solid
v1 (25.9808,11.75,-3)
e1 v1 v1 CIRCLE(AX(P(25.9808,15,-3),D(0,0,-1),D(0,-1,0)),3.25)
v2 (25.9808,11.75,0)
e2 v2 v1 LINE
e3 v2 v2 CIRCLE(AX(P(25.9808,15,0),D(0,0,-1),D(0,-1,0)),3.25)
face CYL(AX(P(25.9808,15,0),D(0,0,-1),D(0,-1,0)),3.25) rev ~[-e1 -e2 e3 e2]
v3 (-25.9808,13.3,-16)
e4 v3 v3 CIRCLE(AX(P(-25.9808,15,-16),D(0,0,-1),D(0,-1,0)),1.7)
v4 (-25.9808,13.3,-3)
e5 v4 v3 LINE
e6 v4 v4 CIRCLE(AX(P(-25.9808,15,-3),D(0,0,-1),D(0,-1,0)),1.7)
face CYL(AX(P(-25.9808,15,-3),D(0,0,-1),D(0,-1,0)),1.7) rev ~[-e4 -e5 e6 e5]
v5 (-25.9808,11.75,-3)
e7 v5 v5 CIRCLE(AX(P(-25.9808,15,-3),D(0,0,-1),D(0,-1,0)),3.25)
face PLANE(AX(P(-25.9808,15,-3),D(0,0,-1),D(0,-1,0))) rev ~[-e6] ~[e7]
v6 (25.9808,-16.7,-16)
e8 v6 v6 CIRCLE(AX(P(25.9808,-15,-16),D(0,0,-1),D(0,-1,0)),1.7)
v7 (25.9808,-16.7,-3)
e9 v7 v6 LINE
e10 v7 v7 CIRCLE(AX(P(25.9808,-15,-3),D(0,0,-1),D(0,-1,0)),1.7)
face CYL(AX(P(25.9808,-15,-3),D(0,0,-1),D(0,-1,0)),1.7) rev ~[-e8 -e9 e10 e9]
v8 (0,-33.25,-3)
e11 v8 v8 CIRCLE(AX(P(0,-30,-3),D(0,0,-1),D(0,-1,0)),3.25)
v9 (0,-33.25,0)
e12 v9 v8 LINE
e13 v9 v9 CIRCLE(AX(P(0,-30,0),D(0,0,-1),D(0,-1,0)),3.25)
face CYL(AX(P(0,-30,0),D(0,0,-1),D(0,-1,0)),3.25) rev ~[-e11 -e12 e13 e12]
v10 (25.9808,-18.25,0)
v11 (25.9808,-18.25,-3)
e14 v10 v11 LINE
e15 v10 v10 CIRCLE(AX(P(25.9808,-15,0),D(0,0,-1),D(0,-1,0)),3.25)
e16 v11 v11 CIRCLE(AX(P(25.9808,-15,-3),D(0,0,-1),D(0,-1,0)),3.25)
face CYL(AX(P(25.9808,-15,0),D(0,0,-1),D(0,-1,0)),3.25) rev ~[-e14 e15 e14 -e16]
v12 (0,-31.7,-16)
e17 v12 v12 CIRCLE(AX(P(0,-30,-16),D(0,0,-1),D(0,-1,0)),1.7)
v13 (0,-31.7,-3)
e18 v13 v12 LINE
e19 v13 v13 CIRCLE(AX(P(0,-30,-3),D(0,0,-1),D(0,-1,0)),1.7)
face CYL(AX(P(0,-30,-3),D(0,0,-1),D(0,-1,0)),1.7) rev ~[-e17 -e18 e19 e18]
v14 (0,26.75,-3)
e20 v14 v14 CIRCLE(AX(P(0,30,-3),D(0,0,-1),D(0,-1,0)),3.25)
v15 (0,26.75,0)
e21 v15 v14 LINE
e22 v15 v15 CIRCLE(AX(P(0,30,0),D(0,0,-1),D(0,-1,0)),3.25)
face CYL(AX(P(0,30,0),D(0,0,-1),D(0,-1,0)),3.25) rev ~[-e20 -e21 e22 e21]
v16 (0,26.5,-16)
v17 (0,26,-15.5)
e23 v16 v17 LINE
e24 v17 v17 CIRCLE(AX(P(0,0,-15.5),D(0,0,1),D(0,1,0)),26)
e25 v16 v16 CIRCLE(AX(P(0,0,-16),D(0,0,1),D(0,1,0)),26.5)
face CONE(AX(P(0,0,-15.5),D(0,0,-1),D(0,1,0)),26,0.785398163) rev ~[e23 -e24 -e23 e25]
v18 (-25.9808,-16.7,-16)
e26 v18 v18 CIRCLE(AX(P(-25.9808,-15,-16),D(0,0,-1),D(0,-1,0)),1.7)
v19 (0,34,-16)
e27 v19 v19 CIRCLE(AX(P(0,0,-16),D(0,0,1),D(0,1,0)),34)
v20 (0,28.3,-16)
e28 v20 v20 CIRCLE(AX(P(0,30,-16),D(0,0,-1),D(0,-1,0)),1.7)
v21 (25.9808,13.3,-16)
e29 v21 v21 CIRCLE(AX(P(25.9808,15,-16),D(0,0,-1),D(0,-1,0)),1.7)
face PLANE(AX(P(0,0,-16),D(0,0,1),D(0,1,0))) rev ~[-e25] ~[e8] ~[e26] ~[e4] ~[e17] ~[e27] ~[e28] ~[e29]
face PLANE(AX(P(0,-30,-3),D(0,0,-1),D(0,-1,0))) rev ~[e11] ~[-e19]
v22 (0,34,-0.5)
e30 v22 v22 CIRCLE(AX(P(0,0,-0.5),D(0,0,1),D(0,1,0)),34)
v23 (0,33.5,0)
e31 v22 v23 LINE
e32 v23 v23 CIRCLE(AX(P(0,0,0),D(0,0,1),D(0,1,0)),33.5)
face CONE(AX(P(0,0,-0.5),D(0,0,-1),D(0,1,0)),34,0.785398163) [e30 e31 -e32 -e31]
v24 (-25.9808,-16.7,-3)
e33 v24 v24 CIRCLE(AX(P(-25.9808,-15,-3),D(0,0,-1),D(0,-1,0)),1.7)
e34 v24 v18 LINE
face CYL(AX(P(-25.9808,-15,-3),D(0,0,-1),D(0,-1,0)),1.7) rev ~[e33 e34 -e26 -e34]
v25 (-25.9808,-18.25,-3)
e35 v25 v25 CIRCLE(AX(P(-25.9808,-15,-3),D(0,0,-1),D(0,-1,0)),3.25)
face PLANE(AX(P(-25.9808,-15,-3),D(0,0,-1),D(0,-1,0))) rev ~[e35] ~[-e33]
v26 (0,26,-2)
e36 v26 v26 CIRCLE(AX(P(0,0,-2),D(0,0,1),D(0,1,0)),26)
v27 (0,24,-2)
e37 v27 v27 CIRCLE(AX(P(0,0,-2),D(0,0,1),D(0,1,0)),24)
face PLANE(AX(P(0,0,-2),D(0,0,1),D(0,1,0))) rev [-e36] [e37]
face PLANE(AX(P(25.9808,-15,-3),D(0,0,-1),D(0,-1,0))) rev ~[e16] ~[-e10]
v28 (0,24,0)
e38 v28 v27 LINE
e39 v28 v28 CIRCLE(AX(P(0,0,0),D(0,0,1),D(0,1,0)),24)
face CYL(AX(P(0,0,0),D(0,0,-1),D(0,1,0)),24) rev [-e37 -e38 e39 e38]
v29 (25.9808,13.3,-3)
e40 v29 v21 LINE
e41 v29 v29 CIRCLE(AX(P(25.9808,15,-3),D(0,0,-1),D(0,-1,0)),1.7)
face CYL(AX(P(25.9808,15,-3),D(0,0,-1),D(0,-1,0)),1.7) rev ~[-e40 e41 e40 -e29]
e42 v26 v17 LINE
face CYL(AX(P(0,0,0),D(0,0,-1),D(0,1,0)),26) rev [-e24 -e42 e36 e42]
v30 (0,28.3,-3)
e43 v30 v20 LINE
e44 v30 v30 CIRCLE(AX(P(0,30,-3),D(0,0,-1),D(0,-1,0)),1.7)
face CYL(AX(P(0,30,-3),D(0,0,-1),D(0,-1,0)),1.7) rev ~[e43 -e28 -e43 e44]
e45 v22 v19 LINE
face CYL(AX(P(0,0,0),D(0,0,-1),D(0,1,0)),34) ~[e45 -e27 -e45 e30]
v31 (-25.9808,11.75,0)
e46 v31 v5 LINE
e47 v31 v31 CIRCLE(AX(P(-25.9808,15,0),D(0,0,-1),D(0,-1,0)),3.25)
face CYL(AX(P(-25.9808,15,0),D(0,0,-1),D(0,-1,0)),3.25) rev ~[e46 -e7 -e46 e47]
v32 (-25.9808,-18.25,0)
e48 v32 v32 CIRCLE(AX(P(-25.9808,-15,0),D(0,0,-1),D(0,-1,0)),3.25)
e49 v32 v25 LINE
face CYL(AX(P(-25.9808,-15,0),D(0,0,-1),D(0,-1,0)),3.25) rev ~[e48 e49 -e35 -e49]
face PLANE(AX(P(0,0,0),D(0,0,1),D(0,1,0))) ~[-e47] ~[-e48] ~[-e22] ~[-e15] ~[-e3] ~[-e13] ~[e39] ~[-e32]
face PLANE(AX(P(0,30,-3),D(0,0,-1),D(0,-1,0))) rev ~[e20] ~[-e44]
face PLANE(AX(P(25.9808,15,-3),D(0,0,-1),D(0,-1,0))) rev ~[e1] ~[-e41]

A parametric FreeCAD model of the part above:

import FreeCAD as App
import Part
import Sketcher
Q = App.Units.Quantity


def edges_at(feature, points):
    """Names of the edges that pass closest to the given points."""
    edges = feature.Shape.Edges
    near = lambda p: min(range(len(edges)), key=lambda i: edges[i].distToShape(Part.Vertex(*p))[0])
    return sorted({f"Edge{near(p) + 1}" for p in points})

doc = App.newDocument("Part")
body = doc.addObject("PartDesign::Body", "Body")

# Sketch on YZ plane
sketch1 = doc.addObject("Sketcher::SketchObject", "Sketch")
body.addObject(sketch1)
sketch1.AttachmentSupport = (doc.YZ_Plane, [""])
sketch1.MapMode = "FlatFace"
sketch1.addGeometry([
    Part.LineSegment(App.Vector(24, 0, 0), App.Vector(24, -2, 0)),  # 0
    Part.LineSegment(App.Vector(24, -2, 0), App.Vector(26, -2, 0)),  # 1
    Part.LineSegment(App.Vector(26, -2, 0), App.Vector(26, -16, 0)),  # 2
    Part.LineSegment(App.Vector(26, -16, 0), App.Vector(34, -16, 0)),  # 3
    Part.LineSegment(App.Vector(34, -16, 0), App.Vector(34, 0, 0)),  # 4
    Part.LineSegment(App.Vector(34, 0, 0), App.Vector(24, 0, 0)),  # 5
], False)
sketch1.addConstraint([
    Sketcher.Constraint("Coincident", 0, 2, 1, 1),
    Sketcher.Constraint("Coincident", 1, 2, 2, 1),
    Sketcher.Constraint("Coincident", 2, 2, 3, 1),
    Sketcher.Constraint("Coincident", 3, 2, 4, 1),
    Sketcher.Constraint("Coincident", 4, 2, 5, 1),
    Sketcher.Constraint("Coincident", 5, 2, 0, 1),
    Sketcher.Constraint("Vertical", 0),
    Sketcher.Constraint("Horizontal", 1),
    Sketcher.Constraint("Vertical", 2),
    Sketcher.Constraint("Horizontal", 3),
    Sketcher.Constraint("Vertical", 4),
    Sketcher.Constraint("Horizontal", 5),
    Sketcher.Constraint("PointOnObject", 4, 2, -1),
    Sketcher.Constraint("Equal", 1, 0),
    Sketcher.Constraint("DistanceX", 1, 1, 1, 2, Q("2 mm")),
    Sketcher.Constraint("DistanceX", 3, 1, 3, 2, Q("8 mm")),
    Sketcher.Constraint("DistanceY", 2, 2, 2, 1, Q("14 mm")),
    Sketcher.Constraint("DistanceX", -1, 1, 1, 2, Q("26 mm")),
])
revolution = doc.addObject("PartDesign::Revolution", "Revolution")
body.addObject(revolution)
revolution.Profile = sketch1
revolution.ReferenceAxis = (sketch1, ["V_Axis"])
revolution.Angle = 360

# Sketch on XY plane
sketch2 = doc.addObject("Sketcher::SketchObject", "Sketch001")
body.addObject(sketch2)
sketch2.AttachmentSupport = (doc.XY_Plane, [""])
sketch2.MapMode = "FlatFace"
sketch2.addGeometry([
    Part.Circle(App.Vector(0, 30, 0), App.Vector(0, 0, 1), 1.7),  # 0
    Part.Circle(App.Vector(-25.9808, 15, 0), App.Vector(0, 0, 1), 1.7),  # 1
    Part.Circle(App.Vector(-25.9808, -15, 0), App.Vector(0, 0, 1), 1.7),  # 2
    Part.Circle(App.Vector(0, -30, 0), App.Vector(0, 0, 1), 1.7),  # 3
    Part.Circle(App.Vector(25.9808, -15, 0), App.Vector(0, 0, 1), 1.7),  # 4
    Part.Circle(App.Vector(25.9808, 15, 0), App.Vector(0, 0, 1), 1.7),  # 5
], False)
sketch2.addConstraint([
    Sketcher.Constraint("Equal", 0, 1),
    Sketcher.Constraint("Equal", 1, 2),
    Sketcher.Constraint("Equal", 2, 3),
    Sketcher.Constraint("Equal", 3, 4),
    Sketcher.Constraint("Equal", 4, 5),
    Sketcher.Constraint("Symmetric", 0, 3, 3, 3, -1, 1),
    Sketcher.Constraint("Symmetric", 1, 3, 4, 3, -1, 1),
    Sketcher.Constraint("Symmetric", 2, 3, 5, 3, -1, 1),
    Sketcher.Constraint("Symmetric", 2, 3, 4, 3, -2),
    Sketcher.Constraint("PointOnObject", 0, 3, -2),
    Sketcher.Constraint("Diameter", 0, Q("3.4 mm")),
    Sketcher.Constraint("DistanceY", -1, 1, 0, 3, Q("30 mm")),
    Sketcher.Constraint("DistanceY", -1, 1, 1, 3, Q("15 mm")),
    Sketcher.Constraint("DistanceX", 1, 3, -1, 1, Q("25.9808 mm")),
])
doc.recompute()
hole = doc.addObject("PartDesign::Hole", "Hole")
body.addObject(hole)
hole.Profile = sketch2
hole.ThreadType = "None"
hole.Diameter = 3.4
hole.DepthType = "ThroughAll"
hole.HoleCutType = "Counterbore"
hole.HoleCutDiameter = 6.5
hole.HoleCutDepth = 3
doc.recompute()

chamfer = doc.addObject("PartDesign::Chamfer", "Chamfer")
body.addObject(chamfer)
chamfer.Base = (hole, edges_at(hole, [(0, -26, -16)]))
chamfer.Size = 0.5
doc.recompute()

chamfer2 = doc.addObject("PartDesign::Chamfer", "Chamfer001")
body.addObject(chamfer2)
chamfer2.Base = (chamfer, edges_at(chamfer, [(0, -34, 0)]))
chamfer2.Size = 0.5

doc.recompute()
